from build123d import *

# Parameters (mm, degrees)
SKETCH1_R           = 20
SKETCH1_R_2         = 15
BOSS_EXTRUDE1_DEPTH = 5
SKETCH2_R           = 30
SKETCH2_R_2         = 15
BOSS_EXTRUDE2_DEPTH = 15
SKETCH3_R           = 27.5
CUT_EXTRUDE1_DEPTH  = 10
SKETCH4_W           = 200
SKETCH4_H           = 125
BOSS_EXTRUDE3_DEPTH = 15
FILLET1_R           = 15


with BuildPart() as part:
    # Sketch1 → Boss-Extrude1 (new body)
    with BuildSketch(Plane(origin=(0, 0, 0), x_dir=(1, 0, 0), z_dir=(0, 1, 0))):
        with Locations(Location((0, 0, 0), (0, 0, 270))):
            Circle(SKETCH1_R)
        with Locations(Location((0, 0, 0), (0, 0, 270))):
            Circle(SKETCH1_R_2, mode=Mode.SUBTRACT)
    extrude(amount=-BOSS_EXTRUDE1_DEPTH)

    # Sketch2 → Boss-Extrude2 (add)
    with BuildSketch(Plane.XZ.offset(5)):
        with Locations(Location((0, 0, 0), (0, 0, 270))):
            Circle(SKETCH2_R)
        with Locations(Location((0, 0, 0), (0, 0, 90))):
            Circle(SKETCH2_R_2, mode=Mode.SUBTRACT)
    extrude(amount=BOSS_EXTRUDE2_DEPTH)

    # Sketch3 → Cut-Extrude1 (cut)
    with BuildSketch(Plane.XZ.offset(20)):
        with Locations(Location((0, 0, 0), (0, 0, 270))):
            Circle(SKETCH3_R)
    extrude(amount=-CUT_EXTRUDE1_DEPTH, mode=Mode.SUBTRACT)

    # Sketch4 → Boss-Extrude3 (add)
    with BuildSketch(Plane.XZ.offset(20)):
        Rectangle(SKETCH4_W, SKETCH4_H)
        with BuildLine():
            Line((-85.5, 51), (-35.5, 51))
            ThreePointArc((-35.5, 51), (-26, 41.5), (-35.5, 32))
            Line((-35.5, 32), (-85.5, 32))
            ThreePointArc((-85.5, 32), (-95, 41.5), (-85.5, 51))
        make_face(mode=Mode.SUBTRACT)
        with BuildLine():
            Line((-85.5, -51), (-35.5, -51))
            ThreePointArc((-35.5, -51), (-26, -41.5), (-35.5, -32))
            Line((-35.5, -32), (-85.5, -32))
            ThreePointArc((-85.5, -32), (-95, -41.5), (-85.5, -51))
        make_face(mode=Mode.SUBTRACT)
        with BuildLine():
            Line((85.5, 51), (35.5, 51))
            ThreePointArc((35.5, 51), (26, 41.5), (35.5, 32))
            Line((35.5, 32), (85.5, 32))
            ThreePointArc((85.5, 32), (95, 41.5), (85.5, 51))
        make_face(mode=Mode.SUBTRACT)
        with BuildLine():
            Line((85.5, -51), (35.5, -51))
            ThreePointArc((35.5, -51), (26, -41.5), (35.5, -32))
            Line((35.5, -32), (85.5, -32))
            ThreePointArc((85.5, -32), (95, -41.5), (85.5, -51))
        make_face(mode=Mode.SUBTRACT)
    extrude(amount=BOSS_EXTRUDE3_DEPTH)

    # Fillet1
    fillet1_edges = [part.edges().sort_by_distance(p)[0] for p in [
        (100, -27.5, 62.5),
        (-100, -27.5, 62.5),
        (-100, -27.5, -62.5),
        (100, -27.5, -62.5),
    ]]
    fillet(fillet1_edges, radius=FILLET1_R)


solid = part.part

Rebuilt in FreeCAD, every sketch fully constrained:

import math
import FreeCAD as App
import Part
import Sketcher
from FreeCAD import Vector
Q = App.Units.Quantity


def edges_at(feature, points):
    """Names of the edges that pass closest to the given points."""
    edges = feature.Shape.Edges
    near = lambda p: min(range(len(edges)), key=lambda i: edges[i].distToShape(Part.Vertex(*p))[0])
    return sorted({f"Edge{near(p) + 1}" for p in points})

doc = App.newDocument("Part")
body = doc.addObject("PartDesign::Body", "Body")

# Sketch on XZ plane
sketch1 = body.newObject("Sketcher::SketchObject", "Sketch")
sketch1.AttachmentSupport = (doc.getObject("XZ_Plane"), [""])
sketch1.MapMode = "FlatFace"
sketch1.addGeometry(Part.Circle(Vector(0, 0, 0), Vector(0, 0, 1), 20), False)
sketch1.addGeometry(Part.Circle(Vector(0, 0, 0), Vector(0, 0, 1), 15), False)
sketch1.addConstraint(Sketcher.Constraint("Coincident", 0, 3, -1, 1))
sketch1.addConstraint(Sketcher.Constraint("Coincident", 1, 3, -1, 1))
sketch1.addConstraint(Sketcher.Constraint("Diameter", 0, Q("40 mm")))
sketch1.addConstraint(Sketcher.Constraint("Diameter", 1, Q("30 mm")))
pad1 = body.newObject("PartDesign::Pad", "Pad")
pad1.Profile = sketch1
pad1.Length = 5

# Sketch on XZ plane
sketch2 = body.newObject("Sketcher::SketchObject", "Sketch001")
sketch2.AttachmentSupport = (doc.getObject("XZ_Plane"), [""])
sketch2.MapMode = "FlatFace"
sketch2.AttachmentOffset = App.Placement(Vector(0, 0, 5), App.Rotation())
sketch2.addGeometry(Part.Circle(Vector(0, 0, 0), Vector(0, 0, 1), 30), False)
sketch2.addGeometry(Part.Circle(Vector(0, 0, 0), Vector(0, 0, 1), 15), False)
sketch2.addConstraint(Sketcher.Constraint("Coincident", 0, 3, -1, 1))
sketch2.addConstraint(Sketcher.Constraint("Coincident", 1, 3, -1, 1))
sketch2.addConstraint(Sketcher.Constraint("Diameter", 0, Q("60 mm")))
sketch2.addConstraint(Sketcher.Constraint("Diameter", 1, Q("30 mm")))
pad2 = body.newObject("PartDesign::Pad", "Pad001")
pad2.Profile = sketch2
pad2.Length = 15

# Sketch on XZ plane
sketch3 = body.newObject("Sketcher::SketchObject", "Sketch002")
sketch3.AttachmentSupport = (doc.getObject("XZ_Plane"), [""])
sketch3.MapMode = "FlatFace"
sketch3.AttachmentOffset = App.Placement(Vector(0, 0, 20), App.Rotation())
sketch3.addGeometry(Part.Circle(Vector(0, 0, 0), Vector(0, 0, 1), 28), False)
sketch3.addConstraint(Sketcher.Constraint("Coincident", 0, 3, -1, 1))
sketch3.addConstraint(Sketcher.Constraint("Diameter", 0, Q("55 mm")))
pocket1 = body.newObject("PartDesign::Pocket", "Pocket")
pocket1.Profile = sketch3
pocket1.Length = 10

# Sketch on XZ plane
sketch4 = body.newObject("Sketcher::SketchObject", "Sketch003")
sketch4.AttachmentSupport = (doc.getObject("XZ_Plane"), [""])
sketch4.MapMode = "FlatFace"
sketch4.AttachmentOffset = App.Placement(Vector(0, 0, 20), App.Rotation())
sketch4.addGeometry(Part.LineSegment(Vector(-100, 62, 0), Vector(-100, -62, 0)), False)
sketch4.addGeometry(Part.LineSegment(Vector(-100, -62, 0), Vector(100, -62, 0)), False)
sketch4.addGeometry(Part.LineSegment(Vector(100, -62, 0), Vector(100, 62, 0)), False)
sketch4.addGeometry(Part.LineSegment(Vector(100, 62, 0), Vector(-100, 62, 0)), False)
sketch4.addGeometry(Part.LineSegment(Vector(-36, -51, 0), Vector(-86, -51, 0)), False)
sketch4.addGeometry(Part.ArcOfCircle(Part.Circle(Vector(-86, -42, 0), Vector(0, 0, 1), 10), math.radians(90), math.radians(270)), False)
sketch4.addGeometry(Part.LineSegment(Vector(-86, -32, 0), Vector(-36, -32, 0)), False)
sketch4.addGeometry(Part.ArcOfCircle(Part.Circle(Vector(-36, -42, 0), Vector(0, 0, 1), 10), math.radians(-90), math.radians(90)), False)
sketch4.addGeometry(Part.ArcOfCircle(Part.Circle(Vector(86, -42, 0), Vector(0, 0, 1), 10), math.radians(-90), math.radians(90)), False)
sketch4.addGeometry(Part.LineSegment(Vector(86, -51, 0), Vector(36, -51, 0)), False)
sketch4.addGeometry(Part.ArcOfCircle(Part.Circle(Vector(36, -42, 0), Vector(0, 0, 1), 10), math.radians(90), math.radians(270)), False)
sketch4.addGeometry(Part.LineSegment(Vector(36, -32, 0), Vector(86, -32, 0)), False)
sketch4.addGeometry(Part.ArcOfCircle(Part.Circle(Vector(-86, 42, 0), Vector(0, 0, 1), 10), math.radians(90), math.radians(270)), False)
sketch4.addGeometry(Part.LineSegment(Vector(-86, 51, 0), Vector(-36, 51, 0)), False)
sketch4.addGeometry(Part.ArcOfCircle(Part.Circle(Vector(-36, 42, 0), Vector(0, 0, 1), 10), math.radians(-90), math.radians(90)), False)
sketch4.addGeometry(Part.LineSegment(Vector(-36, 32, 0), Vector(-86, 32, 0)), False)
sketch4.addGeometry(Part.LineSegment(Vector(36, 51, 0), Vector(86, 51, 0)), False)
sketch4.addGeometry(Part.ArcOfCircle(Part.Circle(Vector(86, 42, 0), Vector(0, 0, 1), 10), math.radians(-90), math.radians(90)), False)
sketch4.addGeometry(Part.LineSegment(Vector(86, 32, 0), Vector(36, 32, 0)), False)
sketch4.addGeometry(Part.ArcOfCircle(Part.Circle(Vector(36, 42, 0), Vector(0, 0, 1), 10), math.radians(90), math.radians(270)), False)
sketch4.addConstraint(Sketcher.Constraint("Coincident", 0, 2, 1, 1))
sketch4.addConstraint(Sketcher.Constraint("Coincident", 1, 2, 2, 1))
sketch4.addConstraint(Sketcher.Constraint("Coincident", 2, 2, 3, 1))
sketch4.addConstraint(Sketcher.Constraint("Coincident", 3, 2, 0, 1))
sketch4.addConstraint(Sketcher.Constraint("Tangent", 4, 2, 5, 2))
sketch4.addConstraint(Sketcher.Constraint("Tangent", 5, 1, 6, 1))
sketch4.addConstraint(Sketcher.Constraint("Tangent", 6, 2, 7, 2))
sketch4.addConstraint(Sketcher.Constraint("Tangent", 7, 1, 4, 1))
sketch4.addConstraint(Sketcher.Constraint("Tangent", 8, 1, 9, 1))
sketch4.addConstraint(Sketcher.Constraint("Tangent", 9, 2, 10, 2))
sketch4.addConstraint(Sketcher.Constraint("Tangent", 10, 1, 11, 1))
sketch4.addConstraint(Sketcher.Constraint("Tangent", 11, 2, 8, 2))
sketch4.addConstraint(Sketcher.Constraint("Tangent", 12, 1, 13, 1))
sketch4.addConstraint(Sketcher.Constraint("Tangent", 13, 2, 14, 2))
sketch4.addConstraint(Sketcher.Constraint("Tangent", 14, 1, 15, 1))
sketch4.addConstraint(Sketcher.Constraint("Tangent", 15, 2, 12, 2))
sketch4.addConstraint(Sketcher.Constraint("Tangent", 16, 2, 17, 2))
sketch4.addConstraint(Sketcher.Constraint("Tangent", 17, 1, 18, 1))
sketch4.addConstraint(Sketcher.Constraint("Tangent", 18, 2, 19, 2))
sketch4.addConstraint(Sketcher.Constraint("Tangent", 19, 1, 16, 1))
sketch4.addConstraint(Sketcher.Constraint("Vertical", 0))
sketch4.addConstraint(Sketcher.Constraint("Horizontal", 1))
sketch4.addConstraint(Sketcher.Constraint("Vertical", 2))
sketch4.addConstraint(Sketcher.Constraint("Horizontal", 3))
sketch4.addConstraint(Sketcher.Constraint("Horizontal", 4))
sketch4.addConstraint(Sketcher.Constraint("Horizontal", 6))
sketch4.addConstraint(Sketcher.Constraint("Horizontal", 9))
sketch4.addConstraint(Sketcher.Constraint("Horizontal", 11))
sketch4.addConstraint(Sketcher.Constraint("Horizontal", 13))
sketch4.addConstraint(Sketcher.Constraint("Horizontal", 15))
sketch4.addConstraint(Sketcher.Constraint("Horizontal", 16))
sketch4.addConstraint(Sketcher.Constraint("Horizontal", 18))
sketch4.addConstraint(Sketcher.Constraint("Equal", 7, 8))
sketch4.addConstraint(Sketcher.Constraint("Equal", 10, 12))
sketch4.addConstraint(Sketcher.Constraint("Equal", 14, 17))
sketch4.addConstraint(Sketcher.Constraint("Symmetric", 8, 3, 12, 3, -1, 1))
sketch4.addConstraint(Sketcher.Constraint("Symmetric", 5, 3, 17, 3, -1, 1))
sketch4.addConstraint(Sketcher.Constraint("Symmetric", 0, 2, 2, 2, -1, 1))
sketch4.addConstraint(Sketcher.Constraint("Symmetric", 5, 3, 8, 3, -2))
sketch4.addConstraint(Sketcher.Constraint("Vertical", 7, 3, 14, 3))
sketch4.addConstraint(Sketcher.Constraint("Vertical", 10, 3, 19, 3))
sketch4.addConstraint(Sketcher.Constraint("Equal", 6, 9))
sketch4.addConstraint(Sketcher.Constraint("Radius", 5, Q("9.5 mm")))
sketch4.addConstraint(Sketcher.Constraint("DistanceX", 1, 1, 1, 2, Q("200 mm")))
sketch4.addConstraint(Sketcher.Constraint("DistanceX", 4, 2, 4, 1, Q("50 mm")))
sketch4.addConstraint(Sketcher.Constraint("DistanceY", 0, 2, 0, 1, Q("125 mm")))
sketch4.addConstraint(Sketcher.Constraint("DistanceY", 4, 2, -1, 1, Q("51 mm")))
sketch4.addConstraint(Sketcher.Constraint("DistanceX", 7, 3, 8, 3, Q("121 mm")))
pad3 = body.newObject("PartDesign::Pad", "Pad002")
pad3.Profile = sketch4
pad3.Length = 15
doc.recompute()

fillet = body.newObject("PartDesign::Fillet", "Fillet")
fillet.Base = (pad3, edges_at(pad3, [
    (100, -27.5, 62.5),
    (-100, -27.5, 62.5),
    (-100, -27.5, -62.5),
    (100, -27.5, -62.5),
]))
fillet.Radius = 15

doc.recompute()
